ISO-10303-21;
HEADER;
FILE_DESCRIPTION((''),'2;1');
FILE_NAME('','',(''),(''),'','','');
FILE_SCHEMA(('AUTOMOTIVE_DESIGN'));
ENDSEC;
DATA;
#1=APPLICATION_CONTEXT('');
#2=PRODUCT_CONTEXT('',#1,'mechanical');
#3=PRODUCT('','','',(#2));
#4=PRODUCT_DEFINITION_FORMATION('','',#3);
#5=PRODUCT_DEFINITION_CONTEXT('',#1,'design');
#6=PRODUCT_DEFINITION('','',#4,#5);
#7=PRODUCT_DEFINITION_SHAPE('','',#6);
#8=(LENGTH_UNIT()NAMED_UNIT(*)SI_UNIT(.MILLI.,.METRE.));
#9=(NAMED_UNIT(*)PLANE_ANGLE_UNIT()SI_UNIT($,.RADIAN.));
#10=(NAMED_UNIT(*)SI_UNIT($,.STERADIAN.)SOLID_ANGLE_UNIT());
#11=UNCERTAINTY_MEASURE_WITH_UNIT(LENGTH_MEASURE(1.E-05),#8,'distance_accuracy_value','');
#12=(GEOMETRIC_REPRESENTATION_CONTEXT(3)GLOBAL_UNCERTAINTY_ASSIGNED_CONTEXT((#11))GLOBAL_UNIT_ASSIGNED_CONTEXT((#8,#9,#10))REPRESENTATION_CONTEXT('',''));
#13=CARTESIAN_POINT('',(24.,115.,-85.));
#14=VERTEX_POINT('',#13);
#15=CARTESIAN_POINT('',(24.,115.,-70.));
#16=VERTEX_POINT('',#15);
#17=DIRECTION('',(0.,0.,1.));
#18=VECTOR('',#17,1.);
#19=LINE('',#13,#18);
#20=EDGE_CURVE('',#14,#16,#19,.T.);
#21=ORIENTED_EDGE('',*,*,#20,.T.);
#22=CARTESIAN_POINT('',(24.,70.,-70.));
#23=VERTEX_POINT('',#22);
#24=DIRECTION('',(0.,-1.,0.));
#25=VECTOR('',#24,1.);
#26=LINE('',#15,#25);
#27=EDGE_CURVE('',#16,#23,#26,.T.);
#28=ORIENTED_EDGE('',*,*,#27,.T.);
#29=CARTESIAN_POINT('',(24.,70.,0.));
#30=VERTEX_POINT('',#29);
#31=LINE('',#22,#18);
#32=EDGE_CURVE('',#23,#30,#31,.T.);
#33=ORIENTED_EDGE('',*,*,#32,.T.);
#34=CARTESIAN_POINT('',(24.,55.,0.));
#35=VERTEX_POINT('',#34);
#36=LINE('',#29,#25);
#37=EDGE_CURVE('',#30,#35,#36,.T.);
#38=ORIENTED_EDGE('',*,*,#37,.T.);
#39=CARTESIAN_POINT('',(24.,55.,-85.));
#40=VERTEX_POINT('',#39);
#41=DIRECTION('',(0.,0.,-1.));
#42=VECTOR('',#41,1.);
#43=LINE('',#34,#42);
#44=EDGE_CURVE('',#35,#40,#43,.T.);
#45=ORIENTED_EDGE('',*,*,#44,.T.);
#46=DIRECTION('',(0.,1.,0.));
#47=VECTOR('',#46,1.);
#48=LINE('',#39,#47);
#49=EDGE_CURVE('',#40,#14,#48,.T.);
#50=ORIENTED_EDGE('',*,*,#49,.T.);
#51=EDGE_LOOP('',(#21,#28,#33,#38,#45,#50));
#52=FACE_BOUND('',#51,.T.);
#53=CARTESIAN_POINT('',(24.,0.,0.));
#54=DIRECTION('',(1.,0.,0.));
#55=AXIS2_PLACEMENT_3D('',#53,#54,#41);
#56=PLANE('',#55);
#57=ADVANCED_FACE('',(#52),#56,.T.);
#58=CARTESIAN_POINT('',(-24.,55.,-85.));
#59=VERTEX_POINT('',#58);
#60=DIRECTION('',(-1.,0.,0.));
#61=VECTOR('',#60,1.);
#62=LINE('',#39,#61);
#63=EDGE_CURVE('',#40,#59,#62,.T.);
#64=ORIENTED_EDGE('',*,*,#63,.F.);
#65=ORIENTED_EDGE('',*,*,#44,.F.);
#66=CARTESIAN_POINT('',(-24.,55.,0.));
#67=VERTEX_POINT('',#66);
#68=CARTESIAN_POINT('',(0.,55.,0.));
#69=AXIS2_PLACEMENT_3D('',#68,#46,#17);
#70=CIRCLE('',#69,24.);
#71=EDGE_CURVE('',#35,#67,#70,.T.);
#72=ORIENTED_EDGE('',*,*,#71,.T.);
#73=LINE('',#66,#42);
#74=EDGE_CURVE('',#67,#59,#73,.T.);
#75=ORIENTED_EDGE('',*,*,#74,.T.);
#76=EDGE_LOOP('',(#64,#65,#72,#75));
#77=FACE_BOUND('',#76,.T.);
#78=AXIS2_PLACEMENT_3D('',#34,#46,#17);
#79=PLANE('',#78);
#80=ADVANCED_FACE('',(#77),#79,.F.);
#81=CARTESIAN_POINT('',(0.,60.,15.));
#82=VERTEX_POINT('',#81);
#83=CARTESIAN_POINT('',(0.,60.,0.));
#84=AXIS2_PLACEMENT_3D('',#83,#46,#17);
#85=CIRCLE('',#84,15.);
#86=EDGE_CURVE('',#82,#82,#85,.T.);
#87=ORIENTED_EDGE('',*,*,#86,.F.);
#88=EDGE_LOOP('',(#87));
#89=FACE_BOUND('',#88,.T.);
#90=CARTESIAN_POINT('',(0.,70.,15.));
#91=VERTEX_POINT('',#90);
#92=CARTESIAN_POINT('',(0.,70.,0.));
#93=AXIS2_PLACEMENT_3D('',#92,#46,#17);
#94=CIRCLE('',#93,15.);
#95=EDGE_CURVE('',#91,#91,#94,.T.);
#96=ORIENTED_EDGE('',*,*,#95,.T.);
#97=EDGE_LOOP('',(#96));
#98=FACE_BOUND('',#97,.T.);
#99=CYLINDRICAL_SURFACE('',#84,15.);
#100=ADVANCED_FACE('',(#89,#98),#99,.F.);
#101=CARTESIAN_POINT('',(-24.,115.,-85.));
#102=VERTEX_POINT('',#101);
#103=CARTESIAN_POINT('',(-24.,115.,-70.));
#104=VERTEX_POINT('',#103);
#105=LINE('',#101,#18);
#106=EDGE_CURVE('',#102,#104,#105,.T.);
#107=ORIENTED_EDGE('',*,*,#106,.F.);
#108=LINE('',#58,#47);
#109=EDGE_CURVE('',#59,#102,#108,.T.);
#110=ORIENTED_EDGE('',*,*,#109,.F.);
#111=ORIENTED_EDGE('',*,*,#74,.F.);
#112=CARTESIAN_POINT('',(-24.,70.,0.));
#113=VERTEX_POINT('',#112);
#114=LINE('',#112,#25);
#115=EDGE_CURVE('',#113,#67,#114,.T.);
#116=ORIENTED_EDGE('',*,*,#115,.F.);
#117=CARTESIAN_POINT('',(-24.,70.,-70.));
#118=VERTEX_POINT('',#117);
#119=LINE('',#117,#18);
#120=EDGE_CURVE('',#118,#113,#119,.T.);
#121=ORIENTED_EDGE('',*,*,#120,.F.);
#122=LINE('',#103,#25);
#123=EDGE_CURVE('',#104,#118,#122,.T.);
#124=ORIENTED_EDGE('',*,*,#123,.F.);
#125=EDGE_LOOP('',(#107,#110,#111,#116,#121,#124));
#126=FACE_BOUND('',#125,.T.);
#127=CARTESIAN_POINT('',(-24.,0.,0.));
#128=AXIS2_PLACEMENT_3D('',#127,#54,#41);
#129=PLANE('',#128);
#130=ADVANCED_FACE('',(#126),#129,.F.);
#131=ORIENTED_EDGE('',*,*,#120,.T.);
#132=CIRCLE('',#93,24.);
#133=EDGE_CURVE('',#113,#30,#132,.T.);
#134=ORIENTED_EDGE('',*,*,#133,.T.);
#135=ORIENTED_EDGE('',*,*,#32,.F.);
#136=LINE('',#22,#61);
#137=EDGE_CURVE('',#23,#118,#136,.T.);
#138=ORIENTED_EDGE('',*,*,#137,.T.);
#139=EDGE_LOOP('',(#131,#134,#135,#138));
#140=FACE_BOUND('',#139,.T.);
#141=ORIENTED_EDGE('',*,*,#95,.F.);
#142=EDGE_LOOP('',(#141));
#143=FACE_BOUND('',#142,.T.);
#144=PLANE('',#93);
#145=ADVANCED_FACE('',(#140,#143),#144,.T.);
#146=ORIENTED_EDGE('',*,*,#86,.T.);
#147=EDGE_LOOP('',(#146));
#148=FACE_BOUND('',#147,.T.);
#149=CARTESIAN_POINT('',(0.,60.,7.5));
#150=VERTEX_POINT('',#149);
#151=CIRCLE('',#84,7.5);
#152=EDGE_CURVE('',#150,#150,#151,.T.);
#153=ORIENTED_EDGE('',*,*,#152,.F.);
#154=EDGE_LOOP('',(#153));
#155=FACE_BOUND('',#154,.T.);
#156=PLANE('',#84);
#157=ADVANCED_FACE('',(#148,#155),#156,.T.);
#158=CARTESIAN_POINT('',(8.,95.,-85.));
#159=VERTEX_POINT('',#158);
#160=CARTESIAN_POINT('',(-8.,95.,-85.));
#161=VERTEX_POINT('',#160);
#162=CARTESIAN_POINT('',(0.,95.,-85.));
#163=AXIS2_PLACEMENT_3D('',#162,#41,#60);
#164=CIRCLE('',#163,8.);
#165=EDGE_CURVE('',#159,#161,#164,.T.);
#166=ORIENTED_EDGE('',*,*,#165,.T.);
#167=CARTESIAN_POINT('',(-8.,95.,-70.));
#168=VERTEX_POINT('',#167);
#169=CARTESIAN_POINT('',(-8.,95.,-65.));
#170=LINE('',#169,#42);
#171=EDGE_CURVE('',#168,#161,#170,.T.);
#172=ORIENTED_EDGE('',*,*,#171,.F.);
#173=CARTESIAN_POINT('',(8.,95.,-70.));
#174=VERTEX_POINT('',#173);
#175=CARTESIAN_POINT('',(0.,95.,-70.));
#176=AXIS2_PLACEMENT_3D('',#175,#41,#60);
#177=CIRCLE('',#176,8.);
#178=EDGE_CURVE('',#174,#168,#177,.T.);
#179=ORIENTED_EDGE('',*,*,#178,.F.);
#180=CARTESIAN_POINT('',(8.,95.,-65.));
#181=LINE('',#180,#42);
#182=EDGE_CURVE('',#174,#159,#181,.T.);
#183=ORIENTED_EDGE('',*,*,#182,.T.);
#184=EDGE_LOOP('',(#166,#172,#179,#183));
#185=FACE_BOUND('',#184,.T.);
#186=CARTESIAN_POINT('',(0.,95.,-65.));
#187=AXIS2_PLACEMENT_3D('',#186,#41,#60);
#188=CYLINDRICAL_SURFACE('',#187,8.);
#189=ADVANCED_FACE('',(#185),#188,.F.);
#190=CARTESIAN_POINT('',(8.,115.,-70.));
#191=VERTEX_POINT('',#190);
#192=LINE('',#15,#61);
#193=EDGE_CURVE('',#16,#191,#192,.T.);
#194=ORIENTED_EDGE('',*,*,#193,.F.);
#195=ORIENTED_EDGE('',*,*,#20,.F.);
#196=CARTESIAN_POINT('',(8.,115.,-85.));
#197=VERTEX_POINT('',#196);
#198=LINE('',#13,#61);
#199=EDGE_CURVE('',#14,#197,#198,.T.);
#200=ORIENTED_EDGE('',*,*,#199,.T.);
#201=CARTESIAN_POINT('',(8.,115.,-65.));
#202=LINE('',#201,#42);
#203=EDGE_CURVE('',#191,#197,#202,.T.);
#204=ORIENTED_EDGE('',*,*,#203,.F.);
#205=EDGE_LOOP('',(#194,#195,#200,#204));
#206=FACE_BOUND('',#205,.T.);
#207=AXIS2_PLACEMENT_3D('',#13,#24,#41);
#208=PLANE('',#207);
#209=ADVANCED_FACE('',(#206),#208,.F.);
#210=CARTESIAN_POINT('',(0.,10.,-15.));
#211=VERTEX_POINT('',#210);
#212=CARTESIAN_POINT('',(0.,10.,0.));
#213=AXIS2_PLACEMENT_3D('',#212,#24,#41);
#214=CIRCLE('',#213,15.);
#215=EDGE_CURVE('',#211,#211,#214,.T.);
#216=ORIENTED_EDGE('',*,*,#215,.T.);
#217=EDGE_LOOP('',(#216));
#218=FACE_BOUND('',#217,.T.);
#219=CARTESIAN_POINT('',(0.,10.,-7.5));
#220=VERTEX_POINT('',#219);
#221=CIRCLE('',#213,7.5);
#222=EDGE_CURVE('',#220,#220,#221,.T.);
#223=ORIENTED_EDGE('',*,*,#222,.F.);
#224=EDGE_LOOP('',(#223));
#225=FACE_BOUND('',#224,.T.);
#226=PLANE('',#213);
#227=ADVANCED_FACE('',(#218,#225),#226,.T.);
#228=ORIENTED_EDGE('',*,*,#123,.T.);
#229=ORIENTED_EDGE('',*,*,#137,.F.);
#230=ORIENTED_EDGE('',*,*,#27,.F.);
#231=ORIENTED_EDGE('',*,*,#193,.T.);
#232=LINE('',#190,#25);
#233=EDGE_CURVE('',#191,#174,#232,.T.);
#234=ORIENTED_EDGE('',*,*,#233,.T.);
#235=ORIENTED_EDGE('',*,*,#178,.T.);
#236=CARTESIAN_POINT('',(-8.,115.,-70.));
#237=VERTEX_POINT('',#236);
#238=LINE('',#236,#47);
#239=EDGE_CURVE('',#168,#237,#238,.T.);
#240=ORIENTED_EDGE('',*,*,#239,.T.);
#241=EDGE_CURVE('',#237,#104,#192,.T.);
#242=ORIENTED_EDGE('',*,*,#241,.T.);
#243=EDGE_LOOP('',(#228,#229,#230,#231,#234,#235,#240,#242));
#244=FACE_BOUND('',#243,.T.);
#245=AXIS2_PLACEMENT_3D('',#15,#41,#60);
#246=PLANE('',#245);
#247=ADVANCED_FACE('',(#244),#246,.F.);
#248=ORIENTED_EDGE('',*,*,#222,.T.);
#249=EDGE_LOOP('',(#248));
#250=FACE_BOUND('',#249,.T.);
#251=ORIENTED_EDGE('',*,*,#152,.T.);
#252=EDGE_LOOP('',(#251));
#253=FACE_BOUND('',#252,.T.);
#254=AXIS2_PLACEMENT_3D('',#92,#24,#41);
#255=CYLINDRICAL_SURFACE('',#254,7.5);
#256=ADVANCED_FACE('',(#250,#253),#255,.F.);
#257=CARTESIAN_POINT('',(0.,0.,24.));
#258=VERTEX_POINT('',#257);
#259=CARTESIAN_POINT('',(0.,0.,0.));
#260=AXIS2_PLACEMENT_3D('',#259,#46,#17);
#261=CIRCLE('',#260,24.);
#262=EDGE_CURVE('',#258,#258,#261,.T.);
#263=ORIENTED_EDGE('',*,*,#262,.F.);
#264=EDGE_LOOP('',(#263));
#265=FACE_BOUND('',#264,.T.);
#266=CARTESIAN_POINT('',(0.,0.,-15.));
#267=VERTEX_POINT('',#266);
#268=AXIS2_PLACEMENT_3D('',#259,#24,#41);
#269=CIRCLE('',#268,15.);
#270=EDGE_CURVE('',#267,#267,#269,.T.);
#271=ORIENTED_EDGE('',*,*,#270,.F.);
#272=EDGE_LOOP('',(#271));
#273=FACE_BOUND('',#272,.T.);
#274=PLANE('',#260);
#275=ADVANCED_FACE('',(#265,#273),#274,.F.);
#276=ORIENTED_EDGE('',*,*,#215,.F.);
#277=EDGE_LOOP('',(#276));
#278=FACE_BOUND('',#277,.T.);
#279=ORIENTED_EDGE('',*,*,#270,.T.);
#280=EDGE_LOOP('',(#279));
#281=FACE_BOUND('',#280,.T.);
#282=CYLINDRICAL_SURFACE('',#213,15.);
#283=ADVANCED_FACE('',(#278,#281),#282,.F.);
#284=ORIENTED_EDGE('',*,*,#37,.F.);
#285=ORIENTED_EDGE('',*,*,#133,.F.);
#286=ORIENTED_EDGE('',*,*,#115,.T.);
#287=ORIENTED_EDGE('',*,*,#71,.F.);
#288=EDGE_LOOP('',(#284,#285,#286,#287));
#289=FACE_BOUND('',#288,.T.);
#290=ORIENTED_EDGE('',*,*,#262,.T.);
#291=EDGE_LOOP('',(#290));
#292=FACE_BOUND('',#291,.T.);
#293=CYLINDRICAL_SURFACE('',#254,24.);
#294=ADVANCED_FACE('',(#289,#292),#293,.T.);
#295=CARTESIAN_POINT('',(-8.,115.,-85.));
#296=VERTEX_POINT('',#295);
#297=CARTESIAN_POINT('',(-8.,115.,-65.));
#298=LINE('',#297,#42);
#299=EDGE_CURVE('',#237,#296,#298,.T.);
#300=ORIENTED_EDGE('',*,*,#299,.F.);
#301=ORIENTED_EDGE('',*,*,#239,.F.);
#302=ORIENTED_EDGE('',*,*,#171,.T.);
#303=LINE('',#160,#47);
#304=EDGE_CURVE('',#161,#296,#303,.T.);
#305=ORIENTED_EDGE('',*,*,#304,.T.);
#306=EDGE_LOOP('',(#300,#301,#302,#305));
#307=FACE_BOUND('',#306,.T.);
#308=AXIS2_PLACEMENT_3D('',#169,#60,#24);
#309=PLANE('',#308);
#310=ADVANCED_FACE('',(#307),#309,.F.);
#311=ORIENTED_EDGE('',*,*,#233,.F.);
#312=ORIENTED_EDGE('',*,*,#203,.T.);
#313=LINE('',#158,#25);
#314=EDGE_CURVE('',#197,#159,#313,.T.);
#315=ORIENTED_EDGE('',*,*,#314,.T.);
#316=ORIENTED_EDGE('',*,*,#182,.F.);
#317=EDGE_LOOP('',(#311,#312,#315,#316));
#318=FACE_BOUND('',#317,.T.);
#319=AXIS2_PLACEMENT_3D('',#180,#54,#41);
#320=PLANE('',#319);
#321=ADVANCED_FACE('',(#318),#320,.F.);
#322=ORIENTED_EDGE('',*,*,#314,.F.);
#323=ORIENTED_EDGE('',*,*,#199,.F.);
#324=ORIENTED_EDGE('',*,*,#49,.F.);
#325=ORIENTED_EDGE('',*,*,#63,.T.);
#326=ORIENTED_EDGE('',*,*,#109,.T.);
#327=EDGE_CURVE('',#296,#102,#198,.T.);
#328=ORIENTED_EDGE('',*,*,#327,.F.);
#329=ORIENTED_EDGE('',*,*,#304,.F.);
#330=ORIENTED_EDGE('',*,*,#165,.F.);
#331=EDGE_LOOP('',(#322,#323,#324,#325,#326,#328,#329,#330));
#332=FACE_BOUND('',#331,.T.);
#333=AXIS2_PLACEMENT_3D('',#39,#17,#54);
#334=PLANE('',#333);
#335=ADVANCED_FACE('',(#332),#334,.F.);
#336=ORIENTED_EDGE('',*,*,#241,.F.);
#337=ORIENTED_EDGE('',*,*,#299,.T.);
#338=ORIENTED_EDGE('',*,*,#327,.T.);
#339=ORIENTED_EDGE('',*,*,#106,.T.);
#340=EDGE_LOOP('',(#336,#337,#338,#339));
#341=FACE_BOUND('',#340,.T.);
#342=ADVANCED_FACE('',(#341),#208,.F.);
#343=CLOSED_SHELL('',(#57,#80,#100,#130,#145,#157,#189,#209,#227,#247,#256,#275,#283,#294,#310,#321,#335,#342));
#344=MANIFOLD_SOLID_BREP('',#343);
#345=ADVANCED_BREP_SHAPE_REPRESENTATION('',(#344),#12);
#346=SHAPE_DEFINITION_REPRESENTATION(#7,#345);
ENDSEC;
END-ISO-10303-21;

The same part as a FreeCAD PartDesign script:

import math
import FreeCAD as App
import Part
import Sketcher
Q = App.Units.Quantity

doc = App.newDocument("Part")
params = doc.addObject("Spreadsheet::Sheet", "Params")
for row, (alias, value) in enumerate([
    ("sketch1_diameter", "48 mm"),
    ("sketch1_diameter2", "15 mm"),
    ("pad1_length", "70 mm"),
    ("sketch2_width", "60 mm"),
    ("sketch2_width2", "45 mm"),
    ("sketch2_height", "85 mm"),
    ("pad2_length", "48 mm"),
    ("sketch3_diameter", "15 mm"),
    ("pocket1_length", "48 mm"),
    ("sketch4_diameter", "30 mm"),
    ("pocket2_length", "10 mm"),
    ("sketch5_diameter", "30 mm"),
    ("pocket3_length", "10 mm"),
    ("sketch6_radius", "8 mm"),
    ("sketch6_height", "20 mm"),
    ("pocket4_length", "20 mm"),
], start=1):
    params.set(f"A{row}", alias)
    params.set(f"B{row}", "=" + value)
    params.setAlias(f"B{row}", alias)

body = doc.addObject("PartDesign::Body", "Body")

# Sketch on XZ plane
sketch1 = doc.addObject("Sketcher::SketchObject", "Sketch")
body.addObject(sketch1)
sketch1.AttachmentSupport = (doc.XZ_Plane, [""])
sketch1.MapMode = "FlatFace"
sketch1.addGeometry([
    Part.Circle(App.Vector(0, 0, 0), App.Vector(0, 0, 1), 24),
    Part.Circle(App.Vector(0, 0, 0), App.Vector(0, 0, 1), 7.5),
], False)
sketch1.addConstraint([
    Sketcher.Constraint("Coincident", 0, 3, -1, 1),
    Sketcher.Constraint("Coincident", 1, 3, -1, 1),
    Sketcher.Constraint("Diameter", 0, Q("48 mm")),
    Sketcher.Constraint("Diameter", 1, Q("15 mm")),
])
sketch1.setExpression("Constraints[2]", "Params.sketch1_diameter")
sketch1.setExpression("Constraints[3]", "Params.sketch1_diameter2")
pad1 = doc.addObject("PartDesign::Pad", "Pad")
body.addObject(pad1)
pad1.Profile = sketch1
pad1.setExpression("Length", "Params.pad1_length")
pad1.Reversed = True

# Sketch on YZ plane
sketch2 = doc.addObject("Sketcher::SketchObject", "Sketch001")
body.addObject(sketch2)
sketch2.AttachmentSupport = (doc.YZ_Plane, [""])
sketch2.MapMode = "FlatFace"
sketch2.addGeometry([
    Part.LineSegment(App.Vector(55, 0, 0), App.Vector(55, -85, 0)),  # 0
    Part.LineSegment(App.Vector(55, -85, 0), App.Vector(115, -85, 0)),  # 1
    Part.LineSegment(App.Vector(115, -85, 0), App.Vector(115, -70, 0)),  # 2
    Part.LineSegment(App.Vector(115, -70, 0), App.Vector(70, -70, 0)),  # 3
    Part.LineSegment(App.Vector(70, -70, 0), App.Vector(70, 0, 0)),  # 4
    Part.LineSegment(App.Vector(70, 0, 0), App.Vector(55, 0, 0)),  # 5
], False)
sketch2.addConstraint([
    Sketcher.Constraint("Coincident", 0, 2, 1, 1),
    Sketcher.Constraint("Coincident", 1, 2, 2, 1),
    Sketcher.Constraint("Coincident", 2, 2, 3, 1),
    Sketcher.Constraint("Coincident", 3, 2, 4, 1),
    Sketcher.Constraint("Coincident", 4, 2, 5, 1),
    Sketcher.Constraint("Coincident", 5, 2, 0, 1),
    Sketcher.Constraint("Vertical", 0),
    Sketcher.Constraint("Horizontal", 1),
    Sketcher.Constraint("Vertical", 2),
    Sketcher.Constraint("Horizontal", 3),
    Sketcher.Constraint("Vertical", 4),
    Sketcher.Constraint("Horizontal", 5),
    Sketcher.Constraint("PointOnObject", 4, 2, -1),
    Sketcher.Constraint("Equal", 5, 2),
    Sketcher.Constraint("DistanceX", 1, 1, 1, 2, Q("60 mm")),
    Sketcher.Constraint("DistanceX", 3, 2, 3, 1, Q("45 mm")),
    Sketcher.Constraint("DistanceY", 0, 2, 0, 1, Q("85 mm")),
    Sketcher.Constraint("DistanceX", -1, 1, 0, 2, Q("55 mm")),
])
sketch2.setExpression("Constraints[14]", "Params.sketch2_width")
sketch2.setExpression("Constraints[15]", "Params.sketch2_width2")
sketch2.setExpression("Constraints[16]", "Params.sketch2_height")
pad2 = doc.addObject("PartDesign::Pad", "Pad001")
body.addObject(pad2)
pad2.Profile = sketch2
pad2.setExpression("Length", "Params.pad2_length")
pad2.Midplane = True

# Sketch on XZ plane
sketch3 = doc.addObject("Sketcher::SketchObject", "Sketch002")
body.addObject(sketch3)
sketch3.AttachmentSupport = (doc.XZ_Plane, [""])
sketch3.MapMode = "FlatFace"
sketch3.AttachmentOffset = App.Placement(App.Vector(0, 0, -55), App.Rotation())
sketch3.addGeometry(Part.Circle(App.Vector(0, 0, 0), App.Vector(0, 0, 1), 7.5), False)
sketch3.addConstraint([
    Sketcher.Constraint("Coincident", 0, 3, -1, 1),
    Sketcher.Constraint("Diameter", 0, Q("15 mm")),
])
sketch3.setExpression("Constraints[1]", "Params.sketch3_diameter")
pocket1 = doc.addObject("PartDesign::Pocket", "Pocket")
body.addObject(pocket1)
pocket1.Profile = sketch3
pocket1.setExpression("Length", "Params.pocket1_length")

# Sketch on XZ plane
sketch4 = doc.addObject("Sketcher::SketchObject", "Sketch003")
body.addObject(sketch4)
sketch4.AttachmentSupport = (doc.XZ_Plane, [""])
sketch4.MapMode = "FlatFace"
sketch4.AttachmentOffset = App.Placement(App.Vector(0, 0, -70), App.Rotation())
sketch4.addGeometry(Part.Circle(App.Vector(0, 0, 0), App.Vector(0, 0, 1), 15), False)
sketch4.addConstraint([
    Sketcher.Constraint("Coincident", 0, 3, -1, 1),
    Sketcher.Constraint("Diameter", 0, Q("30 mm")),
])
sketch4.setExpression("Constraints[1]", "Params.sketch4_diameter")
pocket2 = doc.addObject("PartDesign::Pocket", "Pocket001")
body.addObject(pocket2)
pocket2.Profile = sketch4
pocket2.setExpression("Length", "Params.pocket2_length")
pocket2.Reversed = True

# Sketch on XZ plane
sketch5 = doc.addObject("Sketcher::SketchObject", "Sketch004")
body.addObject(sketch5)
sketch5.AttachmentSupport = (doc.XZ_Plane, [""])
sketch5.MapMode = "FlatFace"
sketch5.addGeometry(Part.Circle(App.Vector(0, 0, 0), App.Vector(0, 0, 1), 15), False)
sketch5.addConstraint([
    Sketcher.Constraint("Coincident", 0, 3, -1, 1),
    Sketcher.Constraint("Diameter", 0, Q("30 mm")),
])
sketch5.setExpression("Constraints[1]", "Params.sketch5_diameter")
pocket3 = doc.addObject("PartDesign::Pocket", "Pocket002")
body.addObject(pocket3)
pocket3.Profile = sketch5
pocket3.setExpression("Length", "Params.pocket3_length")

# Sketch on XY plane
sketch6 = doc.addObject("Sketcher::SketchObject", "Sketch005")
body.addObject(sketch6)
sketch6.AttachmentSupport = (doc.XY_Plane, [""])
sketch6.MapMode = "FlatFace"
sketch6.AttachmentOffset = App.Placement(App.Vector(0, 0, -85), App.Rotation())
sketch6.addGeometry([
    Part.LineSegment(App.Vector(8, 115, 0), App.Vector(8, 95, 0)),
    Part.ArcOfCircle(Part.Circle(App.Vector(0, 95, 0), App.Vector(0, 0, 1), 8), math.radians(180), math.radians(360)),
    Part.LineSegment(App.Vector(-8, 95, 0), App.Vector(-8, 115, 0)),
    Part.LineSegment(App.Vector(-8, 115, 0), App.Vector(8, 115, 0)),
], False)
sketch6.addConstraint([
    Sketcher.Constraint("Tangent", 0, 2, 1, 2),
    Sketcher.Constraint("Tangent", 1, 1, 2, 1),
    Sketcher.Constraint("Coincident", 2, 2, 3, 1),
    Sketcher.Constraint("Coincident", 3, 2, 0, 1),
    Sketcher.Constraint("Vertical", 0),
    Sketcher.Constraint("Vertical", 2),
    Sketcher.Constraint("Horizontal", 3),
    Sketcher.Constraint("PointOnObject", 1, 3, -2),
    Sketcher.Constraint("Radius", 1, Q("8 mm")),
    Sketcher.Constraint("DistanceY", 0, 2, 0, 1, Q("20 mm")),
    Sketcher.Constraint("DistanceY", -1, 1, 1, 3, Q("95 mm")),
])
sketch6.setExpression("Constraints[8]", "Params.sketch6_radius")
sketch6.setExpression("Constraints[9]", "Params.sketch6_height")
pocket4 = doc.addObject("PartDesign::Pocket", "Pocket003")
body.addObject(pocket4)
pocket4.Profile = sketch6
pocket4.setExpression("Length", "Params.pocket4_length")
pocket4.Reversed = True

doc.recompute()
